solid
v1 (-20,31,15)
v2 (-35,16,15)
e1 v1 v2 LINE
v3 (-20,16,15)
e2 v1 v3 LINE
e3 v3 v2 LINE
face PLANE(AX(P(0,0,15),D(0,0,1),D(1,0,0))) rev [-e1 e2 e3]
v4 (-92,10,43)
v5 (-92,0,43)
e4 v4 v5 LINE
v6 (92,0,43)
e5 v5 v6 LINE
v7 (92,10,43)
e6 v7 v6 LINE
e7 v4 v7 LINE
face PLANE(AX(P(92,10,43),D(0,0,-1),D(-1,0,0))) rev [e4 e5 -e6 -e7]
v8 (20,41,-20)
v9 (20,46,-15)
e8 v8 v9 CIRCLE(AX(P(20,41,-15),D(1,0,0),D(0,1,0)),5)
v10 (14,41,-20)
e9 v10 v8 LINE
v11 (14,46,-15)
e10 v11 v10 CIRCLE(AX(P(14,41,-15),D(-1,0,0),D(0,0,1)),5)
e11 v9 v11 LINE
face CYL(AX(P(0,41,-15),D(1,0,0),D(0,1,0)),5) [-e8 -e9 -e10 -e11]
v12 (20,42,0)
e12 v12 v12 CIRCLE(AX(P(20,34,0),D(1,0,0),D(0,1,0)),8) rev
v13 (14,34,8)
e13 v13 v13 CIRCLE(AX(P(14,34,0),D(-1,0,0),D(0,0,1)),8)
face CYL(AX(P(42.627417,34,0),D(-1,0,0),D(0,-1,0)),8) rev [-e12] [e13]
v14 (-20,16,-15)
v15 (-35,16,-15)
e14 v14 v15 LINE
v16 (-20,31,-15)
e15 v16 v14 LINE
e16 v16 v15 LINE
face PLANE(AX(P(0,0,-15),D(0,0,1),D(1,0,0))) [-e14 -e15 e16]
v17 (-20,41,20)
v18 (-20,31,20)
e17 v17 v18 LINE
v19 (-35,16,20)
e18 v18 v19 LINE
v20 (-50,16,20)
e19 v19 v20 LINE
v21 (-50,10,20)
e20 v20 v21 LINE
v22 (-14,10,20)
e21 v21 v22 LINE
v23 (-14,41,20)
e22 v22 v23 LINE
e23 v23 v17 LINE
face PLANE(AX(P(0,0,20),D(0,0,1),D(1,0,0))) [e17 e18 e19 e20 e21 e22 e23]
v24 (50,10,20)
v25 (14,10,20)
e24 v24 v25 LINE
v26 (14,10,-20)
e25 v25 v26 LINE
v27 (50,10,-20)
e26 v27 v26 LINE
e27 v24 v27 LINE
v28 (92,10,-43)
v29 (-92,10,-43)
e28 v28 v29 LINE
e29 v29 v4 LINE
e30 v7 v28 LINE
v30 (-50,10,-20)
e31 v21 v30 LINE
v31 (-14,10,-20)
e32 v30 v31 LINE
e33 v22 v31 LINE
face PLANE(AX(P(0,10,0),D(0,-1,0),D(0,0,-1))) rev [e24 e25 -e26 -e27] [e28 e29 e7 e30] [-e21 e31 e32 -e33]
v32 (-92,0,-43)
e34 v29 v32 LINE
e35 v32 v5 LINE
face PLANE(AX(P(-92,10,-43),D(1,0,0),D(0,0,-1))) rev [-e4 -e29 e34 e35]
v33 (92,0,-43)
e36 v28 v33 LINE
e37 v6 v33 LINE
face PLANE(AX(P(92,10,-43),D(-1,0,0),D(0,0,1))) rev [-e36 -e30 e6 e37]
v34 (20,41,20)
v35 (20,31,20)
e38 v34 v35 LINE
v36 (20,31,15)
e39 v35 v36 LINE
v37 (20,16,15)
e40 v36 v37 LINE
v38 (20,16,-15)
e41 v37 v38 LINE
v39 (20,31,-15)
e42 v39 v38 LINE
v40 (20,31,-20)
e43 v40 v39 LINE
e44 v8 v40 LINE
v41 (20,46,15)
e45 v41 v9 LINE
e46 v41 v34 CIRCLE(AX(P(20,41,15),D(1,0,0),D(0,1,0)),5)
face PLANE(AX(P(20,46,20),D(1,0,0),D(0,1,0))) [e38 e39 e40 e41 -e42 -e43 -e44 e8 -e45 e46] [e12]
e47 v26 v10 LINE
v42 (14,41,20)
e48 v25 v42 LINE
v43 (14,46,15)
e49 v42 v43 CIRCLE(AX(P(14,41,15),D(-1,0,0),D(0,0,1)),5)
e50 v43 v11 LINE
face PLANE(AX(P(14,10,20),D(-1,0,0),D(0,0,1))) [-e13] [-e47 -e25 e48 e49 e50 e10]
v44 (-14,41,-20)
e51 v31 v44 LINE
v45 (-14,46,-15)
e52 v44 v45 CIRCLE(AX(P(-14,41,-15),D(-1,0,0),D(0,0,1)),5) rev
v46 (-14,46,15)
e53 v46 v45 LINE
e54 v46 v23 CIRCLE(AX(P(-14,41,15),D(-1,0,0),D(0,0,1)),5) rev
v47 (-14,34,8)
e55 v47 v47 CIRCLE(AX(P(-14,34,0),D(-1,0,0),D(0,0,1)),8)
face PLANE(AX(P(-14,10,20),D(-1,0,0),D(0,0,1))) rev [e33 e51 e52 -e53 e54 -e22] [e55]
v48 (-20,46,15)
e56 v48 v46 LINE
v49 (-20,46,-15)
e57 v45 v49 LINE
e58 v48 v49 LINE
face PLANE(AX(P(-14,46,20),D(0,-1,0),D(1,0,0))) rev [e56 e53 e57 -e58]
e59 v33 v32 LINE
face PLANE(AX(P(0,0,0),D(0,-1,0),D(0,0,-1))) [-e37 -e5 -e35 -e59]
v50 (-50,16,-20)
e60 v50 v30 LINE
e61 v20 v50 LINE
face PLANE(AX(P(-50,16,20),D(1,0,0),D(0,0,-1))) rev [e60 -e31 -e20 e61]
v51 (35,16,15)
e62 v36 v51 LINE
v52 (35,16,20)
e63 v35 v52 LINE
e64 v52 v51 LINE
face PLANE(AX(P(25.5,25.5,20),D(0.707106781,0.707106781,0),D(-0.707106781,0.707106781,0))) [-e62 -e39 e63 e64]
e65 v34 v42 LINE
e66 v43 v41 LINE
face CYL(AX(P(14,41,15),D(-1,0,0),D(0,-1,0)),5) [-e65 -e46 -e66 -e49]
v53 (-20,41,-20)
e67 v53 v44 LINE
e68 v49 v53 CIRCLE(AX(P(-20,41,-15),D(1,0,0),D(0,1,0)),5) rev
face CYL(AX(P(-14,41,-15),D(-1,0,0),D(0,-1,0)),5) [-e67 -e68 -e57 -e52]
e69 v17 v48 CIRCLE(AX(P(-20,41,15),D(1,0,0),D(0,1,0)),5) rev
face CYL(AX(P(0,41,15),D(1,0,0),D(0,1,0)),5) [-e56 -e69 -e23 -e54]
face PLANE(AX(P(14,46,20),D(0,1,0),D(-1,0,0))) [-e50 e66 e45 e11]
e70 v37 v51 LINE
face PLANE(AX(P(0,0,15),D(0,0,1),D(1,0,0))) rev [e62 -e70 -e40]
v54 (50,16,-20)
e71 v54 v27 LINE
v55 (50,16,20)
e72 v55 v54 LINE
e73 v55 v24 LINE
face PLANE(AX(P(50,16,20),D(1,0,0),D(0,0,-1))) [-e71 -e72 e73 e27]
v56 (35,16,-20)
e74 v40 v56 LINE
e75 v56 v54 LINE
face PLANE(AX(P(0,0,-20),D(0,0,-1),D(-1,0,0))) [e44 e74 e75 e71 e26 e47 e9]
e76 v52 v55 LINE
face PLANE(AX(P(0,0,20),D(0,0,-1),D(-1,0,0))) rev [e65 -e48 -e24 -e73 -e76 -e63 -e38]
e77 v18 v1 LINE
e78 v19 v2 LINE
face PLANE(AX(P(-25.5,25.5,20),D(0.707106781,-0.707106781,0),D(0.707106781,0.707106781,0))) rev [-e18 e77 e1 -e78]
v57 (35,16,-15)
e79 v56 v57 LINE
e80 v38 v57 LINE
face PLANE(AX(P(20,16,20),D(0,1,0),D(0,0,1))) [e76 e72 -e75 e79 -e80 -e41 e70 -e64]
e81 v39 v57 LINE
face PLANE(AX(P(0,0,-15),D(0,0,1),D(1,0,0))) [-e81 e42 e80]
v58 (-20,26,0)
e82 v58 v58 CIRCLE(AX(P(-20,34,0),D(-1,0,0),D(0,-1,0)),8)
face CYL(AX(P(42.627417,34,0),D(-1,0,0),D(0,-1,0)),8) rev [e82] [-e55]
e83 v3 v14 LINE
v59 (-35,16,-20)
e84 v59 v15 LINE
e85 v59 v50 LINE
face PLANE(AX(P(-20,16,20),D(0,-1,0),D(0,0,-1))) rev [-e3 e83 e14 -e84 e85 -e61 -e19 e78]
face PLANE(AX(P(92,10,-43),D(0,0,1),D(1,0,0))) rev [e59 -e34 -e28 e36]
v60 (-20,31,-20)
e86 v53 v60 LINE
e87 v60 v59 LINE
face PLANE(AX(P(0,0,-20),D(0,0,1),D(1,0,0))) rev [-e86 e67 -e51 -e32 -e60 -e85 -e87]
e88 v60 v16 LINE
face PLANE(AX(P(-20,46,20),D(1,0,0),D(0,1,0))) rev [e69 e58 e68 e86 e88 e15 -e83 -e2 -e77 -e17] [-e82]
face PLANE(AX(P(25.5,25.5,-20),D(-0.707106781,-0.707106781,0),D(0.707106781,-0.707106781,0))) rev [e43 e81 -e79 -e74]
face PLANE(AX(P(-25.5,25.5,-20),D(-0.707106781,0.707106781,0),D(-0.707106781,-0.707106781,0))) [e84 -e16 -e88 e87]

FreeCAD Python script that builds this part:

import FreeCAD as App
import Part
import Sketcher

V = App.Vector
Q = App.Units.Quantity


def edges_at(feature, points):
    """Names of the edges that pass closest to the given points."""
    edges = feature.Shape.Edges
    near = lambda p: min(range(len(edges)), key=lambda i: edges[i].distToShape(Part.Vertex(*p))[0])
    return sorted({f"Edge{near(p) + 1}" for p in points})

doc = App.newDocument("Part")
body = doc.addObject("PartDesign::Body", "Body")

sketch1 = doc.addObject("Sketcher::SketchObject", "Sketch")
body.addObject(sketch1)
sketch1.AttachmentSupport = (doc.XZ_Plane, [""])
sketch1.MapMode = "FlatFace"
sketch1.addGeometry([
    Part.LineSegment(V(-92, -43, 0), V(-92, 43, 0)),
    Part.LineSegment(V(-92, 43, 0), V(92, 43, 0)),
    Part.LineSegment(V(92, 43, 0), V(92, -43, 0)),
    Part.LineSegment(V(92, -43, 0), V(-92, -43, 0)),
], False)
sketch1.addConstraint([
    Sketcher.Constraint("Coincident", 0, 2, 1, 1),
    Sketcher.Constraint("Coincident", 1, 2, 2, 1),
    Sketcher.Constraint("Coincident", 2, 2, 3, 1),
    Sketcher.Constraint("Coincident", 3, 2, 0, 1),
    Sketcher.Constraint("Vertical", 0),
    Sketcher.Constraint("Horizontal", 1),
    Sketcher.Constraint("Vertical", 2),
    Sketcher.Constraint("Horizontal", 3),
    Sketcher.Constraint("Symmetric", 0, 2, 2, 2, -1, 1),
    Sketcher.Constraint("DistanceX", 1, 1, 1, 2, Q("184 mm")),
    Sketcher.Constraint("DistanceY", 0, 1, 0, 2, Q("86 mm")),
])
pad1 = doc.addObject("PartDesign::Pad", "Pad")
body.addObject(pad1)
pad1.Profile = sketch1
pad1.Length = 10
pad1.Reversed = True

sketch2 = doc.addObject("Sketcher::SketchObject", "Sketch001")
body.addObject(sketch2)
sketch2.AttachmentSupport = (doc.XY_Plane, [""])
sketch2.MapMode = "FlatFace"
sketch2.addGeometry([
    Part.LineSegment(V(-14, 10, 0), V(-14, 46, 0)),
    Part.LineSegment(V(-14, 46, 0), V(-20, 46, 0)),
    Part.LineSegment(V(-20, 46, 0), V(-20, 16, 0)),
    Part.LineSegment(V(-20, 16, 0), V(-50, 16, 0)),
    Part.LineSegment(V(-50, 16, 0), V(-50, 10, 0)),
    Part.LineSegment(V(-50, 10, 0), V(-14, 10, 0)),
    Part.LineSegment(V(50, 10, 0), V(50, 16, 0)),
    Part.LineSegment(V(50, 16, 0), V(20, 16, 0)),
    Part.LineSegment(V(20, 16, 0), V(20, 46, 0)),
    Part.LineSegment(V(20, 46, 0), V(14, 46, 0)),
    Part.LineSegment(V(14, 46, 0), V(14, 10, 0)),
    Part.LineSegment(V(14, 10, 0), V(50, 10, 0)),
], False)
sketch2.addConstraint([
    Sketcher.Constraint("Coincident", 0, 2, 1, 1),
    Sketcher.Constraint("Coincident", 1, 2, 2, 1),
    Sketcher.Constraint("Coincident", 2, 2, 3, 1),
    Sketcher.Constraint("Coincident", 3, 2, 4, 1),
    Sketcher.Constraint("Coincident", 4, 2, 5, 1),
    Sketcher.Constraint("Coincident", 5, 2, 0, 1),
    Sketcher.Constraint("Coincident", 6, 2, 7, 1),
    Sketcher.Constraint("Coincident", 7, 2, 8, 1),
    Sketcher.Constraint("Coincident", 8, 2, 9, 1),
    Sketcher.Constraint("Coincident", 9, 2, 10, 1),
    Sketcher.Constraint("Coincident", 10, 2, 11, 1),
    Sketcher.Constraint("Coincident", 11, 2, 6, 1),
    Sketcher.Constraint("Vertical", 0),
    Sketcher.Constraint("Horizontal", 1),
    Sketcher.Constraint("Vertical", 2),
    Sketcher.Constraint("Horizontal", 3),
    Sketcher.Constraint("Vertical", 4),
    Sketcher.Constraint("Horizontal", 5),
    Sketcher.Constraint("Vertical", 6),
    Sketcher.Constraint("Horizontal", 7),
    Sketcher.Constraint("Vertical", 8),
    Sketcher.Constraint("Horizontal", 9),
    Sketcher.Constraint("Vertical", 10),
    Sketcher.Constraint("Horizontal", 11),
    Sketcher.Constraint("Symmetric", 3, 2, 6, 2, -2),
    Sketcher.Constraint("Symmetric", 1, 2, 8, 2, -2),
    Sketcher.Constraint("Symmetric", 5, 2, 10, 2, -2),
    Sketcher.Constraint("Equal", 11, 0),
    Sketcher.Constraint("Equal", 7, 2),
    Sketcher.Constraint("DistanceX", 1, 2, 1, 1, Q("6 mm")),
    Sketcher.Constraint("DistanceX", 3, 2, 3, 1, Q("30 mm")),
    Sketcher.Constraint("DistanceX", 0, 2, -1, 1, Q("14 mm")),
    Sketcher.Constraint("DistanceY", -1, 1, 0, 2, Q("46 mm")),
])
pad2 = doc.addObject("PartDesign::Pad", "Pad001")
body.addObject(pad2)
pad2.Profile = sketch2
pad2.Length = 40
pad2.Midplane = True

sketch3 = doc.addObject("Sketcher::SketchObject", "Sketch002")
body.addObject(sketch3)
sketch3.AttachmentSupport = (doc.XY_Plane, [""])
sketch3.MapMode = "FlatFace"
sketch3.AttachmentOffset = App.Placement(V(0, 0, 15), App.Rotation())
sketch3.addGeometry([
    Part.LineSegment(V(-20, 16, 0), V(-20, 31, 0)),
    Part.LineSegment(V(-20, 31, 0), V(-35, 16, 0)),
    Part.LineSegment(V(-35, 16, 0), V(-20, 16, 0)),
    Part.LineSegment(V(35, 16, 0), V(20, 31, 0)),
    Part.LineSegment(V(20, 31, 0), V(20, 16, 0)),
    Part.LineSegment(V(20, 16, 0), V(35, 16, 0)),
], False)
sketch3.addConstraint([
    Sketcher.Constraint("Coincident", 0, 2, 1, 1),
    Sketcher.Constraint("Coincident", 1, 2, 2, 1),
    Sketcher.Constraint("Coincident", 2, 2, 0, 1),
    Sketcher.Constraint("Coincident", 3, 2, 4, 1),
    Sketcher.Constraint("Coincident", 4, 2, 5, 1),
    Sketcher.Constraint("Coincident", 5, 2, 3, 1),
    Sketcher.Constraint("Vertical", 0),
    Sketcher.Constraint("Horizontal", 2),
    Sketcher.Constraint("Vertical", 4),
    Sketcher.Constraint("Horizontal", 5),
    Sketcher.Constraint("Symmetric", 0, 2, 3, 2, -2),
    Sketcher.Constraint("Symmetric", 1, 2, 5, 2, -2),
    Sketcher.Constraint("Perpendicular", 1, 3),
    Sketcher.Constraint("DistanceX", 2, 1, 2, 2, Q("15 mm")),
    Sketcher.Constraint("DistanceX", 0, 2, -1, 1, Q("20 mm")),
    Sketcher.Constraint("DistanceY", -1, 1, 0, 2, Q("31 mm")),
])
pad3 = doc.addObject("PartDesign::Pad", "Pad002")
body.addObject(pad3)
pad3.Profile = sketch3
pad3.Length = 5

sketch4 = doc.addObject("Sketcher::SketchObject", "Sketch003")
body.addObject(sketch4)
sketch4.AttachmentSupport = (doc.XY_Plane, [""])
sketch4.MapMode = "FlatFace"
sketch4.AttachmentOffset = App.Placement(V(0, 0, -15), App.Rotation())
sketch4.addGeometry([
    Part.LineSegment(V(-20, 16, 0), V(-20, 31, 0)),
    Part.LineSegment(V(-20, 31, 0), V(-35, 16, 0)),
    Part.LineSegment(V(-35, 16, 0), V(-20, 16, 0)),
    Part.LineSegment(V(35, 16, 0), V(20, 31, 0)),
    Part.LineSegment(V(20, 31, 0), V(20, 16, 0)),
    Part.LineSegment(V(20, 16, 0), V(35, 16, 0)),
], False)
sketch4.addConstraint([
    Sketcher.Constraint("Coincident", 0, 2, 1, 1),
    Sketcher.Constraint("Coincident", 1, 2, 2, 1),
    Sketcher.Constraint("Coincident", 2, 2, 0, 1),
    Sketcher.Constraint("Coincident", 3, 2, 4, 1),
    Sketcher.Constraint("Coincident", 4, 2, 5, 1),
    Sketcher.Constraint("Coincident", 5, 2, 3, 1),
    Sketcher.Constraint("Vertical", 0),
    Sketcher.Constraint("Horizontal", 2),
    Sketcher.Constraint("Vertical", 4),
    Sketcher.Constraint("Horizontal", 5),
    Sketcher.Constraint("Symmetric", 0, 2, 3, 2, -2),
    Sketcher.Constraint("Symmetric", 1, 2, 5, 2, -2),
    Sketcher.Constraint("Perpendicular", 1, 3),
    Sketcher.Constraint("DistanceX", 2, 1, 2, 2, Q("15 mm")),
    Sketcher.Constraint("DistanceX", 0, 2, -1, 1, Q("20 mm")),
    Sketcher.Constraint("DistanceY", -1, 1, 0, 2, Q("31 mm")),
])
pad4 = doc.addObject("PartDesign::Pad", "Pad003")
body.addObject(pad4)
pad4.Profile = sketch4
pad4.Length = 5
pad4.Reversed = True

sketch5 = doc.addObject("Sketcher::SketchObject", "Sketch004")
body.addObject(sketch5)
sketch5.AttachmentSupport = (doc.YZ_Plane, [""])
sketch5.MapMode = "FlatFace"
sketch5.AttachmentOffset = App.Placement(V(0, 0, -20), App.Rotation())
sketch5.addGeometry(Part.Circle(V(34, 0, 0), V(0, 0, 1), 8), False)
sketch5.addConstraint([
    Sketcher.Constraint("PointOnObject", 0, 3, -1),
    Sketcher.Constraint("Diameter", 0, Q("16 mm")),
    Sketcher.Constraint("DistanceX", -1, 1, 0, 3, Q("34 mm")),
])
pocket1 = doc.addObject("PartDesign::Pocket", "Pocket")
body.addObject(pocket1)
pocket1.Profile = sketch5
pocket1.Length = 40
pocket1.Reversed = True
doc.recompute()

fillet = doc.addObject("PartDesign::Fillet", "Fillet")
body.addObject(fillet)
fillet.Base = (pocket1, edges_at(pocket1, [
    (-17, 46, -20),
    (-17, 46, 20),
    (17, 46, 20),
    (17, 46, -20),
]))
fillet.Radius = 5

doc.recompute()
